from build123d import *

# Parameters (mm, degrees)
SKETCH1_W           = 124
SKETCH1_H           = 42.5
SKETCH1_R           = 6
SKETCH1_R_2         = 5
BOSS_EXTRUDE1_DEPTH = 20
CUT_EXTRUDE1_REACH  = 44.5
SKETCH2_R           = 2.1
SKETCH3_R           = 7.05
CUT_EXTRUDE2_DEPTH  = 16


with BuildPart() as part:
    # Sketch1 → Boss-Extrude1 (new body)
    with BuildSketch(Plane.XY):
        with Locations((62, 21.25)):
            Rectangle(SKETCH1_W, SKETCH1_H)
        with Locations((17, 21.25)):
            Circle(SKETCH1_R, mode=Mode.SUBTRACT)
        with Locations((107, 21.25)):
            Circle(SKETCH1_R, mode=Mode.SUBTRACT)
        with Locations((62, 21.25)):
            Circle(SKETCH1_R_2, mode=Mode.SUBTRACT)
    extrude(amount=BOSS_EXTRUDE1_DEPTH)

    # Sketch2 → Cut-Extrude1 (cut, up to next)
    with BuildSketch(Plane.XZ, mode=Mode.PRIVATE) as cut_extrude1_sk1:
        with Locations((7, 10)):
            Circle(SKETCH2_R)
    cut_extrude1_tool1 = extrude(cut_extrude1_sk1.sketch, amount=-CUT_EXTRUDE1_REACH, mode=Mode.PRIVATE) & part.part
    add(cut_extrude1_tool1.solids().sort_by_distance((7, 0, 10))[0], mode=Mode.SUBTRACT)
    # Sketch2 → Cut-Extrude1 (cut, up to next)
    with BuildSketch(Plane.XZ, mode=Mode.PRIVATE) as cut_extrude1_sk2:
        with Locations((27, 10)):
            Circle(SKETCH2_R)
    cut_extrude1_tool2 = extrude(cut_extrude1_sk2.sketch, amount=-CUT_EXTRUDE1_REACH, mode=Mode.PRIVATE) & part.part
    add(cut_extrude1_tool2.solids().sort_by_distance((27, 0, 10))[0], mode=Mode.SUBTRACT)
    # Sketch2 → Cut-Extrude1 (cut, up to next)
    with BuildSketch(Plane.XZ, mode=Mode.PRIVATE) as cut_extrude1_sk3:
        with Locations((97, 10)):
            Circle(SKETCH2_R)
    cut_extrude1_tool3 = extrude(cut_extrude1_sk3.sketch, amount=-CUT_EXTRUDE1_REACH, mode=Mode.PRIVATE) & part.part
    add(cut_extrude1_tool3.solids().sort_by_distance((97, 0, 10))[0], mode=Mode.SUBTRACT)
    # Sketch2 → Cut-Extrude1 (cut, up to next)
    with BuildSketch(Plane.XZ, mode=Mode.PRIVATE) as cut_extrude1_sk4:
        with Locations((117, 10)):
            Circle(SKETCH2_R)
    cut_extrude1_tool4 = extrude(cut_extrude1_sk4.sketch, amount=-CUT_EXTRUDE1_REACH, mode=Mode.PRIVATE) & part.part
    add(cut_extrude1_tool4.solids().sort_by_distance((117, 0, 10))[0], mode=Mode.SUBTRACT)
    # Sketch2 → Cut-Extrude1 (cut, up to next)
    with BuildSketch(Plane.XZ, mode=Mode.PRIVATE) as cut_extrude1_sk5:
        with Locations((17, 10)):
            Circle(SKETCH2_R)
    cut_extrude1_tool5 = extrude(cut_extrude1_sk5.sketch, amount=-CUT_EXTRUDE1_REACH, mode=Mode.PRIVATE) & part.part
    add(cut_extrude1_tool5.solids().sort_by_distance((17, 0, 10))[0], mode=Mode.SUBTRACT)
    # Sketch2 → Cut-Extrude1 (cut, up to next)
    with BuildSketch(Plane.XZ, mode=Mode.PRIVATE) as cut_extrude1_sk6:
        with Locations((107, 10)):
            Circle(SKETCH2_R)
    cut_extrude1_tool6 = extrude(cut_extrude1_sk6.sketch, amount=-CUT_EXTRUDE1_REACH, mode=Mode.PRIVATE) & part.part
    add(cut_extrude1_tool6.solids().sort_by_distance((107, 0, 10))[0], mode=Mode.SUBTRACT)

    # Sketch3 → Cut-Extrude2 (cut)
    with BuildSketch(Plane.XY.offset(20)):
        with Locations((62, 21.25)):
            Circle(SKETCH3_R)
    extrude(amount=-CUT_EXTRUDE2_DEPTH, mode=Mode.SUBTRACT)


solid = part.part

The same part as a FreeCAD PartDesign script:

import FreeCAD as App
import Part
import Sketcher

V = App.Vector
Q = App.Units.Quantity

doc = App.newDocument("Part")
body = doc.addObject("PartDesign::Body", "Body")

sketch1 = body.newObject("Sketcher::SketchObject", "Sketch")
sketch1.AttachmentSupport = (doc.getObject("XY_Plane"), [""])
sketch1.MapMode = "FlatFace"
sketch1.addGeometry(Part.LineSegment(V(0, 42.5, 0), V(0, 0, 0)), False)
sketch1.addGeometry(Part.LineSegment(V(0, 0, 0), V(124, 0, 0)), False)
sketch1.addGeometry(Part.LineSegment(V(124, 0, 0), V(124, 42.5, 0)), False)
sketch1.addGeometry(Part.LineSegment(V(124, 42.5, 0), V(0, 42.5, 0)), False)
sketch1.addGeometry(Part.Circle(V(17, 21.25, 0), V(0, 0, 1), 6), False)
sketch1.addGeometry(Part.Circle(V(62, 21.25, 0), V(0, 0, 1), 5), False)
sketch1.addGeometry(Part.Circle(V(107, 21.25, 0), V(0, 0, 1), 6), False)
sketch1.addConstraint(Sketcher.Constraint("Coincident", 0, 2, 1, 1))
sketch1.addConstraint(Sketcher.Constraint("Coincident", 1, 2, 2, 1))
sketch1.addConstraint(Sketcher.Constraint("Coincident", 2, 2, 3, 1))
sketch1.addConstraint(Sketcher.Constraint("Coincident", 3, 2, 0, 1))
sketch1.addConstraint(Sketcher.Constraint("Vertical", 0))
sketch1.addConstraint(Sketcher.Constraint("Horizontal", 1))
sketch1.addConstraint(Sketcher.Constraint("Vertical", 2))
sketch1.addConstraint(Sketcher.Constraint("Horizontal", 3))
sketch1.addConstraint(Sketcher.Constraint("Coincident", 0, 2, -1, 1))
sketch1.addConstraint(Sketcher.Constraint("Equal", 4, 6))
sketch1.addConstraint(Sketcher.Constraint("Horizontal", 4, 3, 5, 3))
sketch1.addConstraint(Sketcher.Constraint("Horizontal", 5, 3, 6, 3))
sketch1.addConstraint(Sketcher.Constraint("Diameter", 4, Q("12 mm")))
sketch1.addConstraint(Sketcher.Constraint("Diameter", 5, Q("10 mm")))
sketch1.addConstraint(Sketcher.Constraint("DistanceX", 1, 1, 1, 2, Q("124 mm")))
sketch1.addConstraint(Sketcher.Constraint("DistanceY", 0, 2, 0, 1, Q("42.5 mm")))
sketch1.addConstraint(Sketcher.Constraint("DistanceX", -1, 1, 4, 3, Q("17 mm")))
sketch1.addConstraint(Sketcher.Constraint("DistanceX", -1, 1, 5, 3, Q("62 mm")))
sketch1.addConstraint(Sketcher.Constraint("DistanceX", -1, 1, 6, 3, Q("107 mm")))
sketch1.addConstraint(Sketcher.Constraint("DistanceY", -1, 1, 4, 3, Q("21.25 mm")))
pad1 = body.newObject("PartDesign::Pad", "Pad")
pad1.Profile = sketch1
pad1.Length = 20

sketch2 = body.newObject("Sketcher::SketchObject", "Sketch001")
sketch2.AttachmentSupport = (doc.getObject("XZ_Plane"), [""])
sketch2.MapMode = "FlatFace"
sketch2.addGeometry(Part.Circle(V(7, 10, 0), V(0, 0, 1), 2.1), False)
sketch2.addConstraint(Sketcher.Constraint("Diameter", 0, Q("4.2 mm")))
sketch2.addConstraint(Sketcher.Constraint("DistanceX", -1, 1, 0, 3, Q("7 mm")))
sketch2.addConstraint(Sketcher.Constraint("DistanceY", -1, 1, 0, 3, Q("10 mm")))
pocket1 = body.newObject("PartDesign::Pocket", "Pocket")
pocket1.Profile = sketch2
pocket1.Type = "UpToFirst"

sketch3 = body.newObject("Sketcher::SketchObject", "Sketch002")
sketch3.AttachmentSupport = (doc.getObject("XZ_Plane"), [""])
sketch3.MapMode = "FlatFace"
sketch3.addGeometry(Part.Circle(V(27, 10, 0), V(0, 0, 1), 2.1), False)
sketch3.addConstraint(Sketcher.Constraint("Diameter", 0, Q("4.2 mm")))
sketch3.addConstraint(Sketcher.Constraint("DistanceX", -1, 1, 0, 3, Q("27 mm")))
sketch3.addConstraint(Sketcher.Constraint("DistanceY", -1, 1, 0, 3, Q("10 mm")))
pocket2 = body.newObject("PartDesign::Pocket", "Pocket001")
pocket2.Profile = sketch3
pocket2.Type = "UpToFirst"

sketch4 = body.newObject("Sketcher::SketchObject", "Sketch003")
sketch4.AttachmentSupport = (doc.getObject("XZ_Plane"), [""])
sketch4.MapMode = "FlatFace"
sketch4.addGeometry(Part.Circle(V(97, 10, 0), V(0, 0, 1), 2.1), False)
sketch4.addConstraint(Sketcher.Constraint("Diameter", 0, Q("4.2 mm")))
sketch4.addConstraint(Sketcher.Constraint("DistanceX", -1, 1, 0, 3, Q("97 mm")))
sketch4.addConstraint(Sketcher.Constraint("DistanceY", -1, 1, 0, 3, Q("10 mm")))
pocket3 = body.newObject("PartDesign::Pocket", "Pocket002")
pocket3.Profile = sketch4
pocket3.Type = "UpToFirst"

sketch5 = body.newObject("Sketcher::SketchObject", "Sketch004")
sketch5.AttachmentSupport = (doc.getObject("XZ_Plane"), [""])
sketch5.MapMode = "FlatFace"
sketch5.addGeometry(Part.Circle(V(117, 10, 0), V(0, 0, 1), 2.1), False)
sketch5.addConstraint(Sketcher.Constraint("Diameter", 0, Q("4.2 mm")))
sketch5.addConstraint(Sketcher.Constraint("DistanceX", -1, 1, 0, 3, Q("117 mm")))
sketch5.addConstraint(Sketcher.Constraint("DistanceY", -1, 1, 0, 3, Q("10 mm")))
pocket4 = body.newObject("PartDesign::Pocket", "Pocket003")
pocket4.Profile = sketch5
pocket4.Type = "UpToFirst"

sketch6 = body.newObject("Sketcher::SketchObject", "Sketch005")
sketch6.AttachmentSupport = (doc.getObject("XZ_Plane"), [""])
sketch6.MapMode = "FlatFace"
sketch6.addGeometry(Part.Circle(V(17, 10, 0), V(0, 0, 1), 2.1), False)
sketch6.addConstraint(Sketcher.Constraint("Diameter", 0, Q("4.2 mm")))
sketch6.addConstraint(Sketcher.Constraint("DistanceX", -1, 1, 0, 3, Q("17 mm")))
sketch6.addConstraint(Sketcher.Constraint("DistanceY", -1, 1, 0, 3, Q("10 mm")))
pocket5 = body.newObject("PartDesign::Pocket", "Pocket004")
pocket5.Profile = sketch6
pocket5.Length = 15.629502

sketch7 = body.newObject("Sketcher::SketchObject", "Sketch006")
sketch7.AttachmentSupport = (doc.getObject("XZ_Plane"), [""])
sketch7.MapMode = "FlatFace"
sketch7.addGeometry(Part.Circle(V(107, 10, 0), V(0, 0, 1), 2.1), False)
sketch7.addConstraint(Sketcher.Constraint("Diameter", 0, Q("4.2 mm")))
sketch7.addConstraint(Sketcher.Constraint("DistanceX", -1, 1, 0, 3, Q("107 mm")))
sketch7.addConstraint(Sketcher.Constraint("DistanceY", -1, 1, 0, 3, Q("10 mm")))
pocket6 = body.newObject("PartDesign::Pocket", "Pocket005")
pocket6.Profile = sketch7
pocket6.Length = 15.629502

sketch8 = body.newObject("Sketcher::SketchObject", "Sketch007")
sketch8.AttachmentSupport = (doc.getObject("XY_Plane"), [""])
sketch8.MapMode = "FlatFace"
sketch8.AttachmentOffset = App.Placement(V(0, 0, 20), App.Rotation())
sketch8.addGeometry(Part.Circle(V(62, 21.25, 0), V(0, 0, 1), 7.05), False)
sketch8.addConstraint(Sketcher.Constraint("Diameter", 0, Q("14.1 mm")))
sketch8.addConstraint(Sketcher.Constraint("DistanceX", -1, 1, 0, 3, Q("62 mm")))
sketch8.addConstraint(Sketcher.Constraint("DistanceY", -1, 1, 0, 3, Q("21.25 mm")))
pocket7 = body.newObject("PartDesign::Pocket", "Pocket006")
pocket7.Profile = sketch8
pocket7.Length = 16

doc.recompute()
